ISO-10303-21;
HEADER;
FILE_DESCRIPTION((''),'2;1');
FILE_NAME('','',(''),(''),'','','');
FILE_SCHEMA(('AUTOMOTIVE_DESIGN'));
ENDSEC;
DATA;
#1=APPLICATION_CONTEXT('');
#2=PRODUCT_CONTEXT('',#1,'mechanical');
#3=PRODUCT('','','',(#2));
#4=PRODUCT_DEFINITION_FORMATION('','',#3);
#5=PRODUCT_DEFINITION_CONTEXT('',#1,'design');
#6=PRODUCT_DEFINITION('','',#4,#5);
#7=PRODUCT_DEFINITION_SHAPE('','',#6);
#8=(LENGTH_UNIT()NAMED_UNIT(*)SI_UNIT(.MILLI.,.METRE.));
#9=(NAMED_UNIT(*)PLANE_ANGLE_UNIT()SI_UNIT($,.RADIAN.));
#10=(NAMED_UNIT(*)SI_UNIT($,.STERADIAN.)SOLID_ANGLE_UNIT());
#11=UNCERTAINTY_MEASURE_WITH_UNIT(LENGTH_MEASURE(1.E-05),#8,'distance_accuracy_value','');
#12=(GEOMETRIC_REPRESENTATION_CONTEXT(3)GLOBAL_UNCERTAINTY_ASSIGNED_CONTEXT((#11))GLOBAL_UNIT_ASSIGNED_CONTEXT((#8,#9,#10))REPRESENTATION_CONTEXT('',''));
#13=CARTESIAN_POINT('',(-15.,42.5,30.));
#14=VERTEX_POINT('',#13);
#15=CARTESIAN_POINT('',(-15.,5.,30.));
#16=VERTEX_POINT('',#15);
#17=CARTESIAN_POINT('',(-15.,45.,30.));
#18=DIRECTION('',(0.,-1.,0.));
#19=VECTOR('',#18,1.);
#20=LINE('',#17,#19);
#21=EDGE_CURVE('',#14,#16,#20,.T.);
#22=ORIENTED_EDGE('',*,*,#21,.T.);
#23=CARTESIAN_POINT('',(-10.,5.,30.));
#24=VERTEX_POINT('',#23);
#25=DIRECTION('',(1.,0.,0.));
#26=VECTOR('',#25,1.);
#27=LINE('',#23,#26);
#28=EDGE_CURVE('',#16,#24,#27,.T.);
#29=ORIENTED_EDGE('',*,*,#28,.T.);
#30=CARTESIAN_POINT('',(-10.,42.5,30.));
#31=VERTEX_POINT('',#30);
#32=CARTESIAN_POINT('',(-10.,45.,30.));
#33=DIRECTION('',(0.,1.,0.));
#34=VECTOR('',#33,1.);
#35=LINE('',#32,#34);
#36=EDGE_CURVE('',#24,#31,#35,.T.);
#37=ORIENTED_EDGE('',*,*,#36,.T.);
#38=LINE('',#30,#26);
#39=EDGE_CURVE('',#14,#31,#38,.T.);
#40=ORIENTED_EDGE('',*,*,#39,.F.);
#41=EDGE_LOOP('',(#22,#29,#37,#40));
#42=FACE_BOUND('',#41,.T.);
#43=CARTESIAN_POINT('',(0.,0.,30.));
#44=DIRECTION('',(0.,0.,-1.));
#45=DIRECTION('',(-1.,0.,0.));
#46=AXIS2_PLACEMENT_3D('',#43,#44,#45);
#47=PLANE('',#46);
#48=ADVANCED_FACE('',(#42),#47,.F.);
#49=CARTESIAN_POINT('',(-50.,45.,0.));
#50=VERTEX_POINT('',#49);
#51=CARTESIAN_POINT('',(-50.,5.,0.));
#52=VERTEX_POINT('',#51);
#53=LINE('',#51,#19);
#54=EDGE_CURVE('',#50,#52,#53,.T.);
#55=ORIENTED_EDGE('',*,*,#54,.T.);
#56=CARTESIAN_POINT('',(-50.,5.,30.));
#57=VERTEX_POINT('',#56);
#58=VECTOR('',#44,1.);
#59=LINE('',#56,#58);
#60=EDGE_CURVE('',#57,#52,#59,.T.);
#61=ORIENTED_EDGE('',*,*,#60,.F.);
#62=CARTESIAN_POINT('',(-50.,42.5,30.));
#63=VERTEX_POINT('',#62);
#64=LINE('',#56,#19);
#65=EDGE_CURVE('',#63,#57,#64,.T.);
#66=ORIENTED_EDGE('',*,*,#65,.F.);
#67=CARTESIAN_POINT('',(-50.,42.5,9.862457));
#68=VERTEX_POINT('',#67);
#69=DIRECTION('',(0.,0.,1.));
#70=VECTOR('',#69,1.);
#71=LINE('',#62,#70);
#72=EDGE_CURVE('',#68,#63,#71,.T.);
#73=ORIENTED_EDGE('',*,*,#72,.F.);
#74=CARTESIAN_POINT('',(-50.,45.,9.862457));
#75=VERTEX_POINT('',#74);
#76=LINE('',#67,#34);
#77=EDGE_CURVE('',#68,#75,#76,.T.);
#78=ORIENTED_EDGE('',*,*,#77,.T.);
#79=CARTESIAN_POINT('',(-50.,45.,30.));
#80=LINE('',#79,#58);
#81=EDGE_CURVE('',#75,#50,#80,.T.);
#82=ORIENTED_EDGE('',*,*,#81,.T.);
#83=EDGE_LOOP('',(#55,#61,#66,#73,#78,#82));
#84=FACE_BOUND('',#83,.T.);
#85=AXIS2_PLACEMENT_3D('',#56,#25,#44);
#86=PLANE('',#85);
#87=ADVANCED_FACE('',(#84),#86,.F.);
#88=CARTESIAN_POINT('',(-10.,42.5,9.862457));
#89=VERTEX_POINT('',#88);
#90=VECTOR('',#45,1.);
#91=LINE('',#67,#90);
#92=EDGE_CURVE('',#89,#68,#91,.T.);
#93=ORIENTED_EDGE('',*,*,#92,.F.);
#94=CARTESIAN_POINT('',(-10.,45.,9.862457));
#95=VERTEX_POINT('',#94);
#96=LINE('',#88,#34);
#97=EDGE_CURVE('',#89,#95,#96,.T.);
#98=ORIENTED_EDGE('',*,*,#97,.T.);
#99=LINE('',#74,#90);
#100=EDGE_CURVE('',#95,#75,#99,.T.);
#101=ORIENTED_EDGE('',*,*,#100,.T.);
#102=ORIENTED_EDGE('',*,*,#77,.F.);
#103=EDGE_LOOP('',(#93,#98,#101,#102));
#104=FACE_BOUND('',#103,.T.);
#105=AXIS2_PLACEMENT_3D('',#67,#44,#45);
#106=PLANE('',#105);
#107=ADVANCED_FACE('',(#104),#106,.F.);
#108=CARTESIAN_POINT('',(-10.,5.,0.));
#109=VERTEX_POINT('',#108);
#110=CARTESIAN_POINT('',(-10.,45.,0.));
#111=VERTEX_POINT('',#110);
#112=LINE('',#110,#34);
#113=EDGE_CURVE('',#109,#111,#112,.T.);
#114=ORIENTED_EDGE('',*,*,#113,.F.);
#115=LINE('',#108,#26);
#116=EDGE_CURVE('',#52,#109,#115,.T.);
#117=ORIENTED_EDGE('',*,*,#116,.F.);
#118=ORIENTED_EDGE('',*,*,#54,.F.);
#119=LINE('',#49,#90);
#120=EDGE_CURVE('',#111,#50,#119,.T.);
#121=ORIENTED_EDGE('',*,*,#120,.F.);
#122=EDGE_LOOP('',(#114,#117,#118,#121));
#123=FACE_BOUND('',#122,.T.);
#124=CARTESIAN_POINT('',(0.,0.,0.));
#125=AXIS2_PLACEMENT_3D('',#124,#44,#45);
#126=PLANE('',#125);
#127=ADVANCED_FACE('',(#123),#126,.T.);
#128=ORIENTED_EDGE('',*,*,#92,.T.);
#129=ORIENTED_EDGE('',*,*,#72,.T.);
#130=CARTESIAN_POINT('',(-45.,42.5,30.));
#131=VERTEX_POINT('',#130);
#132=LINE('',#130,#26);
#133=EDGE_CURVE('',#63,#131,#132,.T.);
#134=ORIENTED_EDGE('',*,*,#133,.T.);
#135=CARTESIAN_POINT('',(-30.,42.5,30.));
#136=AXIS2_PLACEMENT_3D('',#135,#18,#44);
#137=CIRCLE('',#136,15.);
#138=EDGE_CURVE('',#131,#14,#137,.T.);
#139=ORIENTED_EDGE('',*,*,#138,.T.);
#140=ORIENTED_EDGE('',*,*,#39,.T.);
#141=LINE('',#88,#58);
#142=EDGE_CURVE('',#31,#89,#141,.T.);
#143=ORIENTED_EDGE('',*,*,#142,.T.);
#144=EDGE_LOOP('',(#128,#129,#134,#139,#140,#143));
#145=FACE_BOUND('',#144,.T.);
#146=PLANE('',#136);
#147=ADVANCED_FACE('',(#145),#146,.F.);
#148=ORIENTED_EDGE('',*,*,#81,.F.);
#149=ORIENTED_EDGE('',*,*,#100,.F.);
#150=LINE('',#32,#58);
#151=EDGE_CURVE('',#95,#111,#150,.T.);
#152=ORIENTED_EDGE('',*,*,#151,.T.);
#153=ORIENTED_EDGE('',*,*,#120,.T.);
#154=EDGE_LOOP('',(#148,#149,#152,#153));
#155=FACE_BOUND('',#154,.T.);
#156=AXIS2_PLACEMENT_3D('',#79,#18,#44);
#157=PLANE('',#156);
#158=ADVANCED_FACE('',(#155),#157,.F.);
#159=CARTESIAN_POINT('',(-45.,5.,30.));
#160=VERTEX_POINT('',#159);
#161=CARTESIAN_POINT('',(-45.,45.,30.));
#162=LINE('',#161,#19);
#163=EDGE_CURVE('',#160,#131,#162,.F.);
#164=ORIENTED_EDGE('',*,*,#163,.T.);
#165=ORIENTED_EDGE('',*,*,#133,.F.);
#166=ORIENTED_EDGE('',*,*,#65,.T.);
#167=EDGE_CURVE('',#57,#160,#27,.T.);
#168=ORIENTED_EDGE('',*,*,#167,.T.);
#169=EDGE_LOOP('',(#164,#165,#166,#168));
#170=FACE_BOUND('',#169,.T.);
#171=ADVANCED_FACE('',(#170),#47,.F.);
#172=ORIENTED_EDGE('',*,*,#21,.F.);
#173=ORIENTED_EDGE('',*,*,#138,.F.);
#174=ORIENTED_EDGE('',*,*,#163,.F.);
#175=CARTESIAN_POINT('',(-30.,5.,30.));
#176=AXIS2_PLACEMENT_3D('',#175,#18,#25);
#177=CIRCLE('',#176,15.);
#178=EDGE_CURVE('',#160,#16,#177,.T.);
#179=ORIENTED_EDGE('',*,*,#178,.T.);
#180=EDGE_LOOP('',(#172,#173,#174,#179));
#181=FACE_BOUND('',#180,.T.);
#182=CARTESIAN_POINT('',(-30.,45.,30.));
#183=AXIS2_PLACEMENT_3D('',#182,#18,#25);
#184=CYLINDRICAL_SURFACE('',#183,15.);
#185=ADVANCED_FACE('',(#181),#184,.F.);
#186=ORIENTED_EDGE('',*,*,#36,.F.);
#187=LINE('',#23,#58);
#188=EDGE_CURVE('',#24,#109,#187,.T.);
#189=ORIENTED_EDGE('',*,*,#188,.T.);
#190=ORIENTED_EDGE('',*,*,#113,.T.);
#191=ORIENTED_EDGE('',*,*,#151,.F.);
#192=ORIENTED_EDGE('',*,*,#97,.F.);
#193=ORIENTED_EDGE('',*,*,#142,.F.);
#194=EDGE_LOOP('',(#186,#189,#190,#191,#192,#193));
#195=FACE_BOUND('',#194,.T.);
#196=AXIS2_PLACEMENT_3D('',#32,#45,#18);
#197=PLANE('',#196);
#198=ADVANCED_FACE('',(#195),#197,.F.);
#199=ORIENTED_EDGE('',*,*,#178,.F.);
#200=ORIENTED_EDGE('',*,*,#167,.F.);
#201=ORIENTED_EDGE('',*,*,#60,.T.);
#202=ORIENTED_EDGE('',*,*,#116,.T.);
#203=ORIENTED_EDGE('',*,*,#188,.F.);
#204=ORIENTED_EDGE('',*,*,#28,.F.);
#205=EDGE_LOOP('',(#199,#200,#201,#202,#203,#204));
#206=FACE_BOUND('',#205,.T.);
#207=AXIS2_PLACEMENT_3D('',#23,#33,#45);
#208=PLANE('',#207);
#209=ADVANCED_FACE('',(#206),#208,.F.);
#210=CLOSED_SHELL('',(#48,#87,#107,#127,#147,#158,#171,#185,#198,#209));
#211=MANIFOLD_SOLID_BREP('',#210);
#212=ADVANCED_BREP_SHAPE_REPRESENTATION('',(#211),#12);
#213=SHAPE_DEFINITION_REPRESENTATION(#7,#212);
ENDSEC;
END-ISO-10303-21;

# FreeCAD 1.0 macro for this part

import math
import FreeCAD as App
import Part
import Sketcher
Q = App.Units.Quantity


def add_polygon(sketch, points):
    """Adds a closed chain of lines whose ends are joined by coincident constraints."""
    first, n = sketch.GeometryCount, len(points)
    for a, b in zip(points, points[1:] + points[:1]):
        sketch.addGeometry(Part.LineSegment(App.Vector(*a, 0), App.Vector(*b, 0)), False)
    for i in range(n):
        sketch.addConstraint(Sketcher.Constraint("Coincident", first + i, 2, first + (i + 1) % n, 1))

doc = App.newDocument("Part")
body = doc.addObject("PartDesign::Body", "Body")

# Sketch on XY plane
sketch1 = body.newObject("Sketcher::SketchObject", "Sketch")
sketch1.AttachmentSupport = (doc.getObject("XY_Plane"), [""])
sketch1.MapMode = "FlatFace"
add_polygon(sketch1, [(-50, 45), (-50, 5), (-10, 5), (-10, 45)])  # lines 0-3
sketch1.addConstraint(Sketcher.Constraint("Vertical", 0))
sketch1.addConstraint(Sketcher.Constraint("Horizontal", 1))
sketch1.addConstraint(Sketcher.Constraint("Vertical", 2))
sketch1.addConstraint(Sketcher.Constraint("Horizontal", 3))
sketch1.addConstraint(Sketcher.Constraint("Equal", 3, 0))
sketch1.addConstraint(Sketcher.Constraint("DistanceX", 1, 1, 1, 2, Q("40 mm")))
sketch1.addConstraint(Sketcher.Constraint("DistanceX", 0, 2, -1, 1, Q("50 mm")))
sketch1.addConstraint(Sketcher.Constraint("DistanceY", -1, 1, 0, 2, Q("5 mm")))
pad1 = body.newObject("PartDesign::Pad", "Pad")
pad1.Profile = sketch1
pad1.Length = 30

# Sketch on XZ plane
sketch2 = body.newObject("Sketcher::SketchObject", "Sketch001")
sketch2.AttachmentSupport = (doc.getObject("XZ_Plane"), [""])
sketch2.MapMode = "FlatFace"
sketch2.AttachmentOffset = App.Placement(App.Vector(0, 0, -5), App.Rotation())
sketch2.addGeometry(Part.Circle(App.Vector(-30, 30, 0), App.Vector(0, 0, 1), 15), False)
sketch2.addConstraint(Sketcher.Constraint("Diameter", 0, Q("30 mm")))
sketch2.addConstraint(Sketcher.Constraint("DistanceX", 0, 3, -1, 1, Q("30 mm")))
sketch2.addConstraint(Sketcher.Constraint("DistanceY", -1, 1, 0, 3, Q("30 mm")))
pocket1 = body.newObject("PartDesign::Pocket", "Pocket")
pocket1.Profile = sketch2
pocket1.Type = "ThroughAll"

# Sketch on XZ plane
sketch3 = body.newObject("Sketcher::SketchObject", "Sketch002")
sketch3.AttachmentSupport = (doc.getObject("XZ_Plane"), [""])
sketch3.MapMode = "FlatFace"
sketch3.AttachmentOffset = App.Placement(App.Vector(0, 0, -45), App.Rotation())
sketch3.addGeometry(Part.LineSegment(App.Vector(-15, 30, 0), App.Vector(-10, 30, 0)), False)
sketch3.addGeometry(Part.LineSegment(App.Vector(-10, 30, 0), App.Vector(-10, 10, 0)), False)
sketch3.addGeometry(Part.LineSegment(App.Vector(-10, 10, 0), App.Vector(-50, 10, 0)), False)
sketch3.addGeometry(Part.LineSegment(App.Vector(-50, 10, 0), App.Vector(-50, 30, 0)), False)
sketch3.addGeometry(Part.LineSegment(App.Vector(-50, 30, 0), App.Vector(-45, 30, 0)), False)
sketch3.addGeometry(Part.ArcOfCircle(Part.Circle(App.Vector(-30, 30, 0), App.Vector(0, 0, 1), 15), math.radians(180), math.radians(360)), False)
sketch3.addConstraint(Sketcher.Constraint("Coincident", 0, 2, 1, 1))
sketch3.addConstraint(Sketcher.Constraint("Coincident", 1, 2, 2, 1))
sketch3.addConstraint(Sketcher.Constraint("Coincident", 2, 2, 3, 1))
sketch3.addConstraint(Sketcher.Constraint("Coincident", 3, 2, 4, 1))
sketch3.addConstraint(Sketcher.Constraint("Coincident", 4, 2, 5, 1))
sketch3.addConstraint(Sketcher.Constraint("Coincident", 5, 2, 0, 1))
sketch3.addConstraint(Sketcher.Constraint("Horizontal", 0))
sketch3.addConstraint(Sketcher.Constraint("Vertical", 1))
sketch3.addConstraint(Sketcher.Constraint("Horizontal", 2))
sketch3.addConstraint(Sketcher.Constraint("Vertical", 3))
sketch3.addConstraint(Sketcher.Constraint("Horizontal", 4))
sketch3.addConstraint(Sketcher.Constraint("Horizontal", 5, 3, 0, 2))
sketch3.addConstraint(Sketcher.Constraint("Horizontal", 0, 2, 3, 2))
sketch3.addConstraint(Sketcher.Constraint("Equal", 0, 4))
sketch3.addConstraint(Sketcher.Constraint("Radius", 5, Q("15 mm")))
sketch3.addConstraint(Sketcher.Constraint("DistanceX", 0, 1, 0, 2, Q("5 mm")))
sketch3.addConstraint(Sketcher.Constraint("DistanceX", 5, 3, -1, 1, Q("30 mm")))
sketch3.addConstraint(Sketcher.Constraint("DistanceY", -1, 1, 5, 3, Q("30 mm")))
sketch3.addConstraint(Sketcher.Constraint("DistanceY", 1, 2, 1, 1, Q("20.137543 mm")))
pocket2 = body.newObject("PartDesign::Pocket", "Pocket001")
pocket2.Profile = sketch3
pocket2.Length = 2.5
pocket2.Reversed = True

doc.recompute()
